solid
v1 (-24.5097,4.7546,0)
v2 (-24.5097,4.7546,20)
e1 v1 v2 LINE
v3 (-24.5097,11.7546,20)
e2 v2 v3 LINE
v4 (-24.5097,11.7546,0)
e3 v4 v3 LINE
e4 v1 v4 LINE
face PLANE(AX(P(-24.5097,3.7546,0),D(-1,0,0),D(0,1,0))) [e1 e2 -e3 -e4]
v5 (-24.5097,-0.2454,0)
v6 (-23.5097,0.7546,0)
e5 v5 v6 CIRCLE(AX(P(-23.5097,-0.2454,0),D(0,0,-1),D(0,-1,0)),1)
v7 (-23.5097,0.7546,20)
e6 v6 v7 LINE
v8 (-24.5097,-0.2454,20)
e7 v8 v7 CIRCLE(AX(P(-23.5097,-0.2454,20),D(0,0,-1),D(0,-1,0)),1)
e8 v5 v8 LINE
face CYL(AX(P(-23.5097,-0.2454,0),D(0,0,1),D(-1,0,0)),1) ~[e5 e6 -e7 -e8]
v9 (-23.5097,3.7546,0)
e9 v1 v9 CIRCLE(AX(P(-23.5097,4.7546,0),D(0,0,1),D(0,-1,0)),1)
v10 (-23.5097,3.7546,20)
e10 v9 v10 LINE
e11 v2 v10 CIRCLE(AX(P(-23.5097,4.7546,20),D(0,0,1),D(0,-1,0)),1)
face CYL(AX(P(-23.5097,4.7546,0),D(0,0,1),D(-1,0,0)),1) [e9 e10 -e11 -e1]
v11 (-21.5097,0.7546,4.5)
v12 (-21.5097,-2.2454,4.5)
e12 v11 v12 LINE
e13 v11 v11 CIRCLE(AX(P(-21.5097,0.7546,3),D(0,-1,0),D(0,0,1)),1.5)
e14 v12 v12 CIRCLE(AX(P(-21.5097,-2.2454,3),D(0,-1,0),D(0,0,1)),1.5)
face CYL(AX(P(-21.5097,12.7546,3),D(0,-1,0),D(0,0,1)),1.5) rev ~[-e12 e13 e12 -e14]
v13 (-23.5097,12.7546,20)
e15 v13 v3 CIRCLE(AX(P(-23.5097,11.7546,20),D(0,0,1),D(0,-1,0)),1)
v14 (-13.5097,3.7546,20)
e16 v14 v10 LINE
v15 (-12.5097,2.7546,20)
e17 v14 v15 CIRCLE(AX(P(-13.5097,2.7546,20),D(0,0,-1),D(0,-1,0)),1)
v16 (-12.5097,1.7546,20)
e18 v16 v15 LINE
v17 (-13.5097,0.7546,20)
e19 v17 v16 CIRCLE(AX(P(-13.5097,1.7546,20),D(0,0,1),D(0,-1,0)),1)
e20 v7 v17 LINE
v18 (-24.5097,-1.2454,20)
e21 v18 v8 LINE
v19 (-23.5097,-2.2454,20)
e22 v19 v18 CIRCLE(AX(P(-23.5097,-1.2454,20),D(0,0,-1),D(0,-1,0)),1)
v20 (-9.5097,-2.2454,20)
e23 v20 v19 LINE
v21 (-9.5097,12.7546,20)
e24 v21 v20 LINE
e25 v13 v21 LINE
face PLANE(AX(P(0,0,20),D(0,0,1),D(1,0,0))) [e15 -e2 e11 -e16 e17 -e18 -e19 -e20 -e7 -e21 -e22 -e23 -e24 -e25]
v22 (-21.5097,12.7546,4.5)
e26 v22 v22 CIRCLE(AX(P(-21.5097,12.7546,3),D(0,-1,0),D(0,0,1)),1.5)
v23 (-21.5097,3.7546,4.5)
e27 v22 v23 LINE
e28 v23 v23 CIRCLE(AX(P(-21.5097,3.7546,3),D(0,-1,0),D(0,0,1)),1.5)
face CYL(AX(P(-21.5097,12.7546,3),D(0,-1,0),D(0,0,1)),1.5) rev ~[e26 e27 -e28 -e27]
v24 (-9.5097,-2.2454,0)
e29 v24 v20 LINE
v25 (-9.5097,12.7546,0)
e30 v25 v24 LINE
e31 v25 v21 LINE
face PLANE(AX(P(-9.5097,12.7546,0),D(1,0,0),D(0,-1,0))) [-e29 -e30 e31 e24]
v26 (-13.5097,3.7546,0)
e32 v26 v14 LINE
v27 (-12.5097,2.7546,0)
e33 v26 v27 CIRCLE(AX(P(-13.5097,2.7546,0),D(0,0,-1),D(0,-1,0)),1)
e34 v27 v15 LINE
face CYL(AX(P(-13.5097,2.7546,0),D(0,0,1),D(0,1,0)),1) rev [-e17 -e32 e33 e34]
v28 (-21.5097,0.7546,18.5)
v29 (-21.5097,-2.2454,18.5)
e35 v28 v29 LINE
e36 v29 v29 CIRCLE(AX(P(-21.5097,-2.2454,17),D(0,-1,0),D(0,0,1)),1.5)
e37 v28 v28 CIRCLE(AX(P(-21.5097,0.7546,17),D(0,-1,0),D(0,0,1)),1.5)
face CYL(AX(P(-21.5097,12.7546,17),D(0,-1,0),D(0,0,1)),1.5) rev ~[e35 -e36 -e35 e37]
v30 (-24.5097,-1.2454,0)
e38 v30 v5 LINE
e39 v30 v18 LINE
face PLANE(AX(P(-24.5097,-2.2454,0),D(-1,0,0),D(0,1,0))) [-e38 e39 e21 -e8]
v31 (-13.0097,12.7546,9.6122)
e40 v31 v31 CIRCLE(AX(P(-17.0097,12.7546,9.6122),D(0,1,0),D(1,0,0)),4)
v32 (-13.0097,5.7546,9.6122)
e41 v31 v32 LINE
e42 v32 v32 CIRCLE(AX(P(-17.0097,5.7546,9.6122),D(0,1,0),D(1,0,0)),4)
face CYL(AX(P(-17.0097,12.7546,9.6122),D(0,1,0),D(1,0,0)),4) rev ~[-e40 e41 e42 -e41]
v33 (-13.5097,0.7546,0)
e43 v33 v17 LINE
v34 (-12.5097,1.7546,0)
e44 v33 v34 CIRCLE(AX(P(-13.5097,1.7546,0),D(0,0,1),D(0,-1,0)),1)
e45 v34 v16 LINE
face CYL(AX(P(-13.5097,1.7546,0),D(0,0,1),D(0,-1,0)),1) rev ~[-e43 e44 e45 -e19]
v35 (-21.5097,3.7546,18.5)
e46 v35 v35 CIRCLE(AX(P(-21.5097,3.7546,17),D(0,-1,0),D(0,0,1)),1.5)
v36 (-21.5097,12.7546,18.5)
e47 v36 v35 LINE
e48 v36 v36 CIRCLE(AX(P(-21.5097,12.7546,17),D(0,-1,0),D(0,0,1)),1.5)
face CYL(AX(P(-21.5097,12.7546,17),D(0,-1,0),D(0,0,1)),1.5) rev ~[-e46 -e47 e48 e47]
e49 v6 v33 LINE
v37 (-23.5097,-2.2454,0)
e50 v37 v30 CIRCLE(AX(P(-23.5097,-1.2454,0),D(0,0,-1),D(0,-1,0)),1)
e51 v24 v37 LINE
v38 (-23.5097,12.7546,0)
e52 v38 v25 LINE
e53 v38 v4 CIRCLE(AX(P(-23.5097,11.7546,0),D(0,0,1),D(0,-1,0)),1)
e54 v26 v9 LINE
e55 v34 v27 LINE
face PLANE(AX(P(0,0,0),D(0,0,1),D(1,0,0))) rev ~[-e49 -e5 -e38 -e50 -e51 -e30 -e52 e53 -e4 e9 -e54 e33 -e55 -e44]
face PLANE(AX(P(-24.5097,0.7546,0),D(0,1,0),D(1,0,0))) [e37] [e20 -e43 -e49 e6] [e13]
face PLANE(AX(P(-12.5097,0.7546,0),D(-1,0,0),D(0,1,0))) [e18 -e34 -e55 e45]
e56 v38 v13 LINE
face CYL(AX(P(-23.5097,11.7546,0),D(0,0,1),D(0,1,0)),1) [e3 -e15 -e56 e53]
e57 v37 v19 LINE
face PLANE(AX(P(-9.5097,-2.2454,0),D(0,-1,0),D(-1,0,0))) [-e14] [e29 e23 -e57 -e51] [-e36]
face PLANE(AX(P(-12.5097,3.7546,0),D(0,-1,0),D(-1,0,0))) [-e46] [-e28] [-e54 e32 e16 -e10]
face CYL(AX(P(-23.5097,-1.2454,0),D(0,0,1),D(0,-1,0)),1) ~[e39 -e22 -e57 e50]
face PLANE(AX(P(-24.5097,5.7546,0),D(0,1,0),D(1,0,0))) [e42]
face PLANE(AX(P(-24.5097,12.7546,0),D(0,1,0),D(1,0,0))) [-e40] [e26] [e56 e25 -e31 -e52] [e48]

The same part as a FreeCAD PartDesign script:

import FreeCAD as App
import Part
import Sketcher
Q = App.Units.Quantity


def edges_at(feature, points):
    """Names of the edges that pass closest to the given points."""
    edges = feature.Shape.Edges
    near = lambda p: min(range(len(edges)), key=lambda i: edges[i].distToShape(Part.Vertex(*p))[0])
    return sorted({f"Edge{near(p) + 1}" for p in points})

doc = App.newDocument("Part")
body = doc.addObject("PartDesign::Body", "Body")

sketch1 = doc.addObject("Sketcher::SketchObject", "Sketch")
body.addObject(sketch1)
sketch1.AttachmentSupport = (doc.XY_Plane, [""])
sketch1.MapMode = "FlatFace"
sketch1.addGeometry([
    Part.LineSegment(App.Vector(-9.5, 12.8, 0), App.Vector(-24.5, 12.8, 0)),
    Part.LineSegment(App.Vector(-24.5, 12.8, 0), App.Vector(-24.5, 3.8, 0)),
    Part.LineSegment(App.Vector(-24.5, 3.8, 0), App.Vector(-12.5, 3.8, 0)),
    Part.LineSegment(App.Vector(-12.5, 3.8, 0), App.Vector(-12.5, 0.8, 0)),
    Part.LineSegment(App.Vector(-12.5, 0.8, 0), App.Vector(-24.5, 0.8, 0)),
    Part.LineSegment(App.Vector(-24.5, 0.8, 0), App.Vector(-24.5, -2.2, 0)),
    Part.LineSegment(App.Vector(-24.5, -2.2, 0), App.Vector(-9.5, -2.2, 0)),
    Part.LineSegment(App.Vector(-9.5, -2.2, 0), App.Vector(-9.5, 12.8, 0)),
], False)
sketch1.addConstraint([
    Sketcher.Constraint("Coincident", 0, 2, 1, 1),
    Sketcher.Constraint("Coincident", 1, 2, 2, 1),
    Sketcher.Constraint("Coincident", 2, 2, 3, 1),
    Sketcher.Constraint("Coincident", 3, 2, 4, 1),
    Sketcher.Constraint("Coincident", 4, 2, 5, 1),
    Sketcher.Constraint("Coincident", 5, 2, 6, 1),
    Sketcher.Constraint("Coincident", 6, 2, 7, 1),
    Sketcher.Constraint("Coincident", 7, 2, 0, 1),
    Sketcher.Constraint("Horizontal", 0),
    Sketcher.Constraint("Vertical", 1),
    Sketcher.Constraint("Horizontal", 2),
    Sketcher.Constraint("Vertical", 3),
    Sketcher.Constraint("Horizontal", 4),
    Sketcher.Constraint("Vertical", 5),
    Sketcher.Constraint("Horizontal", 6),
    Sketcher.Constraint("Vertical", 7),
    Sketcher.Constraint("Vertical", 1, 2, 4, 2),
    Sketcher.Constraint("Equal", 3, 5),
    Sketcher.Constraint("Equal", 6, 7),
    Sketcher.Constraint("DistanceX", 0, 2, 0, 1, Q("15 mm")),
    Sketcher.Constraint("DistanceX", 2, 1, 2, 2, Q("12 mm")),
    Sketcher.Constraint("DistanceY", 1, 2, 1, 1, Q("9 mm")),
    Sketcher.Constraint("DistanceX", 0, 2, -1, 1, Q("24.5097 mm")),
    Sketcher.Constraint("DistanceY", -1, 1, 0, 2, Q("12.7546 mm")),
])
pad1 = doc.addObject("PartDesign::Pad", "Pad")
body.addObject(pad1)
pad1.Profile = sketch1
pad1.Length = 20

sketch2 = doc.addObject("Sketcher::SketchObject", "Sketch001")
body.addObject(sketch2)
sketch2.AttachmentSupport = (doc.XZ_Plane, [""])
sketch2.MapMode = "FlatFace"
sketch2.AttachmentOffset = App.Placement(App.Vector(0, 0, -12.7546), App.Rotation())
sketch2.addGeometry([
    Part.Circle(App.Vector(-21.5, 3, 0), App.Vector(0, 0, 1), 1.5),
    Part.Circle(App.Vector(-21.5, 17, 0), App.Vector(0, 0, 1), 1.5),
], False)
sketch2.addConstraint([
    Sketcher.Constraint("Equal", 0, 1),
    Sketcher.Constraint("Vertical", 0, 3, 1, 3),
    Sketcher.Constraint("Diameter", 0, Q("3 mm")),
    Sketcher.Constraint("DistanceY", -1, 1, 0, 3, Q("3 mm")),
    Sketcher.Constraint("DistanceY", -1, 1, 1, 3, Q("17 mm")),
    Sketcher.Constraint("DistanceX", 0, 3, -1, 1, Q("21.5097 mm")),
])
doc.recompute()
hole = doc.addObject("PartDesign::Hole", "Hole")
body.addObject(hole)
hole.Profile = sketch2
hole.ThreadType = "None"
hole.Diameter = 3
hole.DepthType = "ThroughAll"
hole.Reversed = True

sketch3 = doc.addObject("Sketcher::SketchObject", "Sketch002")
body.addObject(sketch3)
sketch3.AttachmentSupport = (doc.XZ_Plane, [""])
sketch3.MapMode = "FlatFace"
sketch3.AttachmentOffset = App.Placement(App.Vector(0, 0, -12.7546), App.Rotation())
sketch3.addGeometry(Part.Circle(App.Vector(-17, 9.6, 0), App.Vector(0, 0, 1), 4), False)
sketch3.addConstraint([
    Sketcher.Constraint("Diameter", 0, Q("8 mm")),
    Sketcher.Constraint("DistanceX", 0, 3, -1, 1, Q("17.0097 mm")),
    Sketcher.Constraint("DistanceY", -1, 1, 0, 3, Q("9.6122 mm")),
])
pocket1 = doc.addObject("PartDesign::Pocket", "Pocket")
body.addObject(pocket1)
pocket1.Profile = sketch3
pocket1.Length = 7
pocket1.Reversed = True
doc.recompute()

fillet = doc.addObject("PartDesign::Fillet", "Fillet")
body.addObject(fillet)
fillet.Base = (pocket1, edges_at(pocket1, [
    (-12.51, 3.755, 10),
    (-12.51, 0.755, 10),
    (-24.51, -2.245, 10),
    (-24.51, 0.755, 10),
    (-24.51, 3.755, 10),
    (-24.51, 12.755, 10),
]))
fillet.Radius = 1

doc.recompute()
